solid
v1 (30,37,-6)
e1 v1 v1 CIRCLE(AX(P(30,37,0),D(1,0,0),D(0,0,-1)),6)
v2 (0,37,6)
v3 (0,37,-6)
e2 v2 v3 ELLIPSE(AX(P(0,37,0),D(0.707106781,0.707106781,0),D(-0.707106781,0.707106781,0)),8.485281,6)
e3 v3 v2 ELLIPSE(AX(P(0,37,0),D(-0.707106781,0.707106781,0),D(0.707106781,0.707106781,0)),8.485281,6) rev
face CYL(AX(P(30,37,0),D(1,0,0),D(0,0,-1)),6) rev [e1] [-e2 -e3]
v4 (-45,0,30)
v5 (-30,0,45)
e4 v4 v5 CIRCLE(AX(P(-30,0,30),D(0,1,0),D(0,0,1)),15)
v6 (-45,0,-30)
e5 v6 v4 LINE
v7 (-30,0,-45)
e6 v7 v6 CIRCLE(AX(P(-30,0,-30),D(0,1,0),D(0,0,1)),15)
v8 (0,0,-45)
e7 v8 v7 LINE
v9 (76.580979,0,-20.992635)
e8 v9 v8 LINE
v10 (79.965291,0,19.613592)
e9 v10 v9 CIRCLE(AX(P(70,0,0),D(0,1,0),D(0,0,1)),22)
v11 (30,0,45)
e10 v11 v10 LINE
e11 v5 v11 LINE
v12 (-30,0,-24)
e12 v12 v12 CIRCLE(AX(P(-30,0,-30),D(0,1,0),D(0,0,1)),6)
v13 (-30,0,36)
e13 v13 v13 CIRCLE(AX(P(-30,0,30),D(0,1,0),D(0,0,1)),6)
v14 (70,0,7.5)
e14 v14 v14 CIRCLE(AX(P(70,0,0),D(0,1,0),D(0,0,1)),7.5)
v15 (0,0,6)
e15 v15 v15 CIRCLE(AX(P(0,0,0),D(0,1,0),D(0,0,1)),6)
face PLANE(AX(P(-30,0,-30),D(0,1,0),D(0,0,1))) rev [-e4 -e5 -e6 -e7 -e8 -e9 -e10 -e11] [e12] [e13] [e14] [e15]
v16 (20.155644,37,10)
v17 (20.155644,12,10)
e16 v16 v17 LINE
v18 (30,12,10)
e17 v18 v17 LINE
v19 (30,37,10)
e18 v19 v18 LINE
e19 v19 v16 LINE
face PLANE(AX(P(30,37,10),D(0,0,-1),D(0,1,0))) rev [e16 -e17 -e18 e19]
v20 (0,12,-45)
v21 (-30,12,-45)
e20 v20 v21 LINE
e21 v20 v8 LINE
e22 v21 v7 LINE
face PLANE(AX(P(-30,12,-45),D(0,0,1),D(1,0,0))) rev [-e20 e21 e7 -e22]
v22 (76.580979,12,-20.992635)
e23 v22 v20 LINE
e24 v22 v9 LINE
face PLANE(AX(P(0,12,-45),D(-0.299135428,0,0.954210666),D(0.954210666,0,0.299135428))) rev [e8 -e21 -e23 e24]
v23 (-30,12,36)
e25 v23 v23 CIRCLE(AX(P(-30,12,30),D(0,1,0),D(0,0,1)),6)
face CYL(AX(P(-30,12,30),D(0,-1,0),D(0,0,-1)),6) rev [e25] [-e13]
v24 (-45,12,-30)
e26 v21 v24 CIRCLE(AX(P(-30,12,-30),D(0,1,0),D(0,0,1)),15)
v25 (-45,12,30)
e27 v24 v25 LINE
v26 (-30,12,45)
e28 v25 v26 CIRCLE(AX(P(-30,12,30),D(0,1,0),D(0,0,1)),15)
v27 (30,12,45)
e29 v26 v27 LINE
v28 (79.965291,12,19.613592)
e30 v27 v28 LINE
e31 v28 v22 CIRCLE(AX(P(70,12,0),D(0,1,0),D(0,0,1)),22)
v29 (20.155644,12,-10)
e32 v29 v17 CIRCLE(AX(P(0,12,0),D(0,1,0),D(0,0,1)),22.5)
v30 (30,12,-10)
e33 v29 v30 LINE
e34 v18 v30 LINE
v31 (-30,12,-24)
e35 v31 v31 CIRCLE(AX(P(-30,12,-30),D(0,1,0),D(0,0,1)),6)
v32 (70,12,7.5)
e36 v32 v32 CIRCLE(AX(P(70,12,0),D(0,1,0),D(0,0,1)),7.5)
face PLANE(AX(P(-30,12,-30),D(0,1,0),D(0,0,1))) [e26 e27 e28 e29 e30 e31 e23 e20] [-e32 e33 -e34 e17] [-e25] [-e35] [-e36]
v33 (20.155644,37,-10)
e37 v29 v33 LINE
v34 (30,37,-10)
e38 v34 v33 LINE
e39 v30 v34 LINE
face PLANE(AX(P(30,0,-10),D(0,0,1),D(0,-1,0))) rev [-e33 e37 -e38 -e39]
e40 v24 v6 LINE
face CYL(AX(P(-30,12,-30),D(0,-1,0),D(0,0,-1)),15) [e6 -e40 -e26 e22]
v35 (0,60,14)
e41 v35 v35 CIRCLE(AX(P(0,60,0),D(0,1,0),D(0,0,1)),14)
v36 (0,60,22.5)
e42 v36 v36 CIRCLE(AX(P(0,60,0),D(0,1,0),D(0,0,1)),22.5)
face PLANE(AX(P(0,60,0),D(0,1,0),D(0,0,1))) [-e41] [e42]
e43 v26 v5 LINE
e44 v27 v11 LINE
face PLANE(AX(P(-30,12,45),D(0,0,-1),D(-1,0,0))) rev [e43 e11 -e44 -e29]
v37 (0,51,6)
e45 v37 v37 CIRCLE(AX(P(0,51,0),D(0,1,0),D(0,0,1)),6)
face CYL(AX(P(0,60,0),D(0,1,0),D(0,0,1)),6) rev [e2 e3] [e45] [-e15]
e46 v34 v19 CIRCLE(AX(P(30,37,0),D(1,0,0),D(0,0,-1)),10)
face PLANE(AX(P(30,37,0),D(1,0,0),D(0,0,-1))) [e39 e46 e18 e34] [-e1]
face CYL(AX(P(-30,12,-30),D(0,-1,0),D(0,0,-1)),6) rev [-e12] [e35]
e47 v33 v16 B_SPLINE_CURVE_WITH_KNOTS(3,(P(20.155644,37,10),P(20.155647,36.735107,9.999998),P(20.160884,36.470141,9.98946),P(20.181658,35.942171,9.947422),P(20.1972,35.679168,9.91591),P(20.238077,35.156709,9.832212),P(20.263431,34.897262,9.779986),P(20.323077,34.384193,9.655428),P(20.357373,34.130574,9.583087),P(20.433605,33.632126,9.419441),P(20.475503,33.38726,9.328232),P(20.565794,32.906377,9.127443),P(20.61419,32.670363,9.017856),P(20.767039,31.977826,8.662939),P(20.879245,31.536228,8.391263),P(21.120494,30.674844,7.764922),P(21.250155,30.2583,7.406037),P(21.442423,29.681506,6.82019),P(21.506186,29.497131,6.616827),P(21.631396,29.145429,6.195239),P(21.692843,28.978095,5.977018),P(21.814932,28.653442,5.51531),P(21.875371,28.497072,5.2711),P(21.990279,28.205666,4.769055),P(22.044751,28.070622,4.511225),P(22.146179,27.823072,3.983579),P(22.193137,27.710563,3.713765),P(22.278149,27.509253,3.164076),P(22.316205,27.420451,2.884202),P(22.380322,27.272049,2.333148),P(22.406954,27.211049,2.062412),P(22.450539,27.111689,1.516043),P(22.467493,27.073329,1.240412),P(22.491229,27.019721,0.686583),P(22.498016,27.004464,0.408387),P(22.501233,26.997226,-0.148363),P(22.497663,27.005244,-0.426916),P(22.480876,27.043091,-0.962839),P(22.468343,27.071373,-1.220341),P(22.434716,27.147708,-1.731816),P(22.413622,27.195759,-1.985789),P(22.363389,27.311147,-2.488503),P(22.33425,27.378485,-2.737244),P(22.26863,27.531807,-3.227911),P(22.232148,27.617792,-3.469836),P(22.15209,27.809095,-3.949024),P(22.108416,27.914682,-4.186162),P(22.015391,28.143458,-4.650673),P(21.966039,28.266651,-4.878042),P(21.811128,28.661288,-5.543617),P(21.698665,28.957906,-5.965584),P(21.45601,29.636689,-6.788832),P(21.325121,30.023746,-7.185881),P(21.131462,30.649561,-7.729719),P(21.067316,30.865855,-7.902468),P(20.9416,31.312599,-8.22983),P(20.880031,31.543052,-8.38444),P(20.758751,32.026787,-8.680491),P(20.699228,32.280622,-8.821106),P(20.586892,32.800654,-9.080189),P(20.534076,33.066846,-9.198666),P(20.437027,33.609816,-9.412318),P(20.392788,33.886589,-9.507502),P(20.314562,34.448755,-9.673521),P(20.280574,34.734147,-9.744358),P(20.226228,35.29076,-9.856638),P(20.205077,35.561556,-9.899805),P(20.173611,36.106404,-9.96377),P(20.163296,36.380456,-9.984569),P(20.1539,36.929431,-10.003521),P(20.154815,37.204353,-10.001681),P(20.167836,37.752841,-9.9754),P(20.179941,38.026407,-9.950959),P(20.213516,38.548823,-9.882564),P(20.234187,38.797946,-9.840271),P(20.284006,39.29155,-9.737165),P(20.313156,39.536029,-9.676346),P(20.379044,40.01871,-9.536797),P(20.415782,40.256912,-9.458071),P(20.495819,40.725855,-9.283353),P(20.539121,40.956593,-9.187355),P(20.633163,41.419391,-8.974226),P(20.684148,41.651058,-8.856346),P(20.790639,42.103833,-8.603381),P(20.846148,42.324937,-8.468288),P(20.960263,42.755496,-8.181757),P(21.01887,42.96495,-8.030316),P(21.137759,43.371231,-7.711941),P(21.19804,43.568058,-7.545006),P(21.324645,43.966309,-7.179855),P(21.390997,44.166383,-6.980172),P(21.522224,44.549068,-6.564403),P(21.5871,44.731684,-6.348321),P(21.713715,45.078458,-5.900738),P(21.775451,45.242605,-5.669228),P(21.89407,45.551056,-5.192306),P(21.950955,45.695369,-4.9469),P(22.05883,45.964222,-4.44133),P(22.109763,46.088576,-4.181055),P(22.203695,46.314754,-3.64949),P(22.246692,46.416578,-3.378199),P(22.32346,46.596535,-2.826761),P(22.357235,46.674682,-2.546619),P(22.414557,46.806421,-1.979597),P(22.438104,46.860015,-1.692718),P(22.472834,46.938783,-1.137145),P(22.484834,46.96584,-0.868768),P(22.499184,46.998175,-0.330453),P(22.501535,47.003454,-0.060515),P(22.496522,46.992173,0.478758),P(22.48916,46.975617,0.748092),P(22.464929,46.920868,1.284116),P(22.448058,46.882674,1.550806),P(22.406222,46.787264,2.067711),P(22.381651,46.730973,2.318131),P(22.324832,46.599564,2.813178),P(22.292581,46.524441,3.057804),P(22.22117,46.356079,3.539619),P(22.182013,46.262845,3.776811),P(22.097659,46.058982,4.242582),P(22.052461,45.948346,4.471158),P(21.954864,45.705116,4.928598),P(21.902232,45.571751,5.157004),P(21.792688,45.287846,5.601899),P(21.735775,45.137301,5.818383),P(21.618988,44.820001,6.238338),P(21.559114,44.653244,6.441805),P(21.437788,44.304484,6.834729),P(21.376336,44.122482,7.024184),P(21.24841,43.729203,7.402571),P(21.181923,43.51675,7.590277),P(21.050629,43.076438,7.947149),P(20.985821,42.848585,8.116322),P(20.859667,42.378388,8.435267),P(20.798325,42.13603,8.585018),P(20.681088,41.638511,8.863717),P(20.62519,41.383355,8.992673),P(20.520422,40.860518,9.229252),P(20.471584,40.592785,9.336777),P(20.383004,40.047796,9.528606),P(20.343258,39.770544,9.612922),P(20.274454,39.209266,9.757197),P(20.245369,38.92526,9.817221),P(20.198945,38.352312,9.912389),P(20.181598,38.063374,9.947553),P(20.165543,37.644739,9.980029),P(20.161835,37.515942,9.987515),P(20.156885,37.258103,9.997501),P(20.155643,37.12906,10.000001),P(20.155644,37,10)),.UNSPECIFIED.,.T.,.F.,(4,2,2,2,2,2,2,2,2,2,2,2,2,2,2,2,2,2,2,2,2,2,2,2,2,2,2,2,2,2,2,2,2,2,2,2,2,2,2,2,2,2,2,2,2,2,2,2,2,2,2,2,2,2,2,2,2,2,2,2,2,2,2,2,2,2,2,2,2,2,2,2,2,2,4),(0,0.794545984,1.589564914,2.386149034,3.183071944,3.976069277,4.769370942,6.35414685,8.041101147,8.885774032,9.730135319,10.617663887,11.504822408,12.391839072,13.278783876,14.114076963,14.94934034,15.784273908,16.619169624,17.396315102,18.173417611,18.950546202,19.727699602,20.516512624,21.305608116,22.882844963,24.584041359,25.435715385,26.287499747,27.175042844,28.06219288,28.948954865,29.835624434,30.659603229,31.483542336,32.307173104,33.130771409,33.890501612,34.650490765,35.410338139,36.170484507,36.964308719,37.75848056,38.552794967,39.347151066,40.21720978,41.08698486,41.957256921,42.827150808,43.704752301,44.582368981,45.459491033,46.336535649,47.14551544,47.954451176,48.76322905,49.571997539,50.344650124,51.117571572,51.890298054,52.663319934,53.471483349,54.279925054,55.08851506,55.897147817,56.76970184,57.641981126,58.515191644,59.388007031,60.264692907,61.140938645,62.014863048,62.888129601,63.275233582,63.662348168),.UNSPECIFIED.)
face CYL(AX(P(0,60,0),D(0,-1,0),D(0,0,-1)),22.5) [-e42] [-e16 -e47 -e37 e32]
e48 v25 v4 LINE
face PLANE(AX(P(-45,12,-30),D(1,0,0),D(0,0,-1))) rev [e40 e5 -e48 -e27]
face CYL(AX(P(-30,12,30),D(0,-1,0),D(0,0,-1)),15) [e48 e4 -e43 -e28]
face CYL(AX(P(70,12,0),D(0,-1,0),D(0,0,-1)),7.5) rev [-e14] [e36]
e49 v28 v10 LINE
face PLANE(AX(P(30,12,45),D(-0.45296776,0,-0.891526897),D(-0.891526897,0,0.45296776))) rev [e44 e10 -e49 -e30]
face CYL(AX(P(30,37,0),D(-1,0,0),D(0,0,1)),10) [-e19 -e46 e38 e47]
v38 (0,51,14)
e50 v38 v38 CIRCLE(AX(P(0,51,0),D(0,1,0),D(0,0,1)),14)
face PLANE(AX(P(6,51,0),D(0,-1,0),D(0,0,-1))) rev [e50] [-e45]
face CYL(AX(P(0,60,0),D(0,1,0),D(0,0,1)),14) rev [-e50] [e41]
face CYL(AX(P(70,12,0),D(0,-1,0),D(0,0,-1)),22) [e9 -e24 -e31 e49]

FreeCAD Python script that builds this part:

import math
import FreeCAD as App
import Part
import Sketcher

V = App.Vector

doc = App.newDocument("Part")
body = doc.addObject("PartDesign::Body", "Body")

sketch1 = body.newObject("Sketcher::SketchObject", "Sketch")
sketch1.AttachmentSupport = (doc.getObject("XZ_Plane"), [""])
sketch1.MapMode = "FlatFace"
sketch1.addGeometry([
    Part.LineSegment(V(-45, -30, 0), V(-45, 30, 0)),
    Part.ArcOfCircle(Part.Circle(V(-30, 30, 0), V(0, 0, 1), 15), math.radians(90), math.radians(180)),
    Part.LineSegment(V(-30, 45, 0), V(30, 45, 0)),
    Part.LineSegment(V(30, 45, 0), V(80, 20, 0)),
    Part.ArcOfCircle(Part.Circle(V(70, 0, 0), V(0, 0, 1), 22), math.radians(-73), math.radians(63)),
    Part.LineSegment(V(77, -21, 0), V(0, -45, 0)),
    Part.LineSegment(V(0, -45, 0), V(-30, -45, 0)),
    Part.ArcOfCircle(Part.Circle(V(-30, -30, 0), V(0, 0, 1), 15), math.radians(180), math.radians(270)),
    Part.Circle(V(-30, 30, 0), V(0, 0, 1), 6),
    Part.Circle(V(-30, -30, 0), V(0, 0, 1), 6),
    Part.Circle(V(70, 0, 0), V(0, 0, 1), 8),
], False)
sketch1.addConstraint([
    Sketcher.Constraint("Tangent", 0, 2, 1, 2),
    Sketcher.Constraint("Tangent", 1, 1, 2, 1),
    Sketcher.Constraint("Coincident", 2, 2, 3, 1),
    Sketcher.Constraint("Tangent", 3, 2, 4, 2),
    Sketcher.Constraint("Tangent", 4, 1, 5, 1),
    Sketcher.Constraint("Coincident", 5, 2, 6, 1),
    Sketcher.Constraint("Tangent", 6, 2, 7, 2),
    Sketcher.Constraint("Tangent", 7, 1, 0, 1),
    Sketcher.Constraint("Vertical", 0),
    Sketcher.Constraint("Horizontal", 2),
    Sketcher.Constraint("Horizontal", 6),
    Sketcher.Constraint("Coincident", 8, 3, 1, 3),
    Sketcher.Constraint("Coincident", 9, 3, 7, 3),
    Sketcher.Constraint("Coincident", 10, 3, 4, 3),
    Sketcher.Constraint("Equal", 1, 7),
    Sketcher.Constraint("Equal", 8, 9),
    Sketcher.Constraint("Symmetric", 2, 2, 6, 2, -1, 1),
    Sketcher.Constraint("PointOnObject", 4, 3, -1),
    Sketcher.Constraint("PointOnObject", 5, 2, -2),
    Sketcher.Constraint("Equal", 2, 0),
    Sketcher.Constraint("Diameter", 8, 12.0),
    Sketcher.Constraint("Diameter", 10, 15.0),
    Sketcher.Constraint("Radius", 1, 15.0),
    Sketcher.Constraint("Radius", 4, 22.0),
    Sketcher.Constraint("DistanceX", 2, 1, 2, 2, 60.0),
    Sketcher.Constraint("DistanceX", -1, 1, 4, 3, 70.0),
])
pad1 = body.newObject("PartDesign::Pad", "Pad")
pad1.Profile = sketch1
pad1.Length = 12
pad1.Reversed = True

sketch2 = body.newObject("Sketcher::SketchObject", "Sketch001")
sketch2.AttachmentSupport = (doc.getObject("XZ_Plane"), [""])
sketch2.MapMode = "FlatFace"
sketch2.AttachmentOffset = App.Placement(V(0, 0, -12), App.Rotation())
sketch2.addGeometry(Part.Circle(V(0, 0, 0), V(0, 0, 1), 22), False)
sketch2.addConstraint([
    Sketcher.Constraint("Coincident", 0, 3, -1, 1),
    Sketcher.Constraint("Diameter", 0, 45.0),
])
pad2 = body.newObject("PartDesign::Pad", "Pad001")
pad2.Profile = sketch2
pad2.Length = 48
pad2.Reversed = True

sketch3 = body.newObject("Sketcher::SketchObject", "Sketch002")
sketch3.AttachmentSupport = (doc.getObject("XZ_Plane"), [""])
sketch3.MapMode = "FlatFace"
sketch3.AttachmentOffset = App.Placement(V(0, 0, -60), App.Rotation())
sketch3.addGeometry(Part.Circle(V(0, 0, 0), V(0, 0, 1), 6), False)
sketch3.addConstraint([
    Sketcher.Constraint("Coincident", 0, 3, -1, 1),
    Sketcher.Constraint("Diameter", 0, 12.0),
])
doc.recompute()
hole = body.newObject("PartDesign::Hole", "Hole")
hole.Profile = sketch3
hole.ThreadType = "None"
hole.Diameter = 12
hole.DepthType = "Dimension"
hole.Depth = 100
hole.DrillPoint = "Flat"
hole.HoleCutType = "Counterbore"
hole.HoleCutDiameter = 28
hole.HoleCutDepth = 9
hole.Reversed = True

sketch4 = body.newObject("Sketcher::SketchObject", "Sketch003")
sketch4.AttachmentSupport = (doc.getObject("YZ_Plane"), [""])
sketch4.MapMode = "FlatFace"
sketch4.AttachmentOffset = App.Placement(V(0, 0, 15), App.Rotation())
sketch4.addGeometry([
    Part.LineSegment(V(37, 10, 0), V(0, 10, 0)),
    Part.LineSegment(V(0, 10, 0), V(0, -10, 0)),
    Part.LineSegment(V(0, -10, 0), V(37, -10, 0)),
    Part.ArcOfCircle(Part.Circle(V(37, 0, 0), V(0, 0, 1), 10), math.radians(-90), math.radians(90)),
], False)
sketch4.addConstraint([
    Sketcher.Constraint("Coincident", 0, 2, 1, 1),
    Sketcher.Constraint("Coincident", 1, 2, 2, 1),
    Sketcher.Constraint("Tangent", 2, 2, 3, 1),
    Sketcher.Constraint("Tangent", 3, 2, 0, 1),
    Sketcher.Constraint("Horizontal", 0),
    Sketcher.Constraint("Vertical", 1),
    Sketcher.Constraint("Horizontal", 2),
    Sketcher.Constraint("Symmetric", 0, 2, 1, 2, -1, 1),
    Sketcher.Constraint("Radius", 3, 10.0),
    Sketcher.Constraint("DistanceX", 0, 2, 0, 1, 37.0),
])
pad3 = body.newObject("PartDesign::Pad", "Pad002")
pad3.Profile = sketch4
pad3.Length = 15

sketch5 = body.newObject("Sketcher::SketchObject", "Sketch004")
sketch5.AttachmentSupport = (doc.getObject("YZ_Plane"), [""])
sketch5.MapMode = "FlatFace"
sketch5.AttachmentOffset = App.Placement(V(0, 0, 30), App.Rotation())
sketch5.addGeometry(Part.Circle(V(37, 0, 0), V(0, 0, 1), 6), False)
sketch5.addConstraint([
    Sketcher.Constraint("PointOnObject", 0, 3, -1),
    Sketcher.Constraint("Diameter", 0, 12.0),
    Sketcher.Constraint("DistanceX", -1, 1, 0, 3, 37.0),
])
pocket1 = body.newObject("PartDesign::Pocket", "Pocket")
pocket1.Profile = sketch5
pocket1.Type = "UpToFirst"

doc.recompute()
